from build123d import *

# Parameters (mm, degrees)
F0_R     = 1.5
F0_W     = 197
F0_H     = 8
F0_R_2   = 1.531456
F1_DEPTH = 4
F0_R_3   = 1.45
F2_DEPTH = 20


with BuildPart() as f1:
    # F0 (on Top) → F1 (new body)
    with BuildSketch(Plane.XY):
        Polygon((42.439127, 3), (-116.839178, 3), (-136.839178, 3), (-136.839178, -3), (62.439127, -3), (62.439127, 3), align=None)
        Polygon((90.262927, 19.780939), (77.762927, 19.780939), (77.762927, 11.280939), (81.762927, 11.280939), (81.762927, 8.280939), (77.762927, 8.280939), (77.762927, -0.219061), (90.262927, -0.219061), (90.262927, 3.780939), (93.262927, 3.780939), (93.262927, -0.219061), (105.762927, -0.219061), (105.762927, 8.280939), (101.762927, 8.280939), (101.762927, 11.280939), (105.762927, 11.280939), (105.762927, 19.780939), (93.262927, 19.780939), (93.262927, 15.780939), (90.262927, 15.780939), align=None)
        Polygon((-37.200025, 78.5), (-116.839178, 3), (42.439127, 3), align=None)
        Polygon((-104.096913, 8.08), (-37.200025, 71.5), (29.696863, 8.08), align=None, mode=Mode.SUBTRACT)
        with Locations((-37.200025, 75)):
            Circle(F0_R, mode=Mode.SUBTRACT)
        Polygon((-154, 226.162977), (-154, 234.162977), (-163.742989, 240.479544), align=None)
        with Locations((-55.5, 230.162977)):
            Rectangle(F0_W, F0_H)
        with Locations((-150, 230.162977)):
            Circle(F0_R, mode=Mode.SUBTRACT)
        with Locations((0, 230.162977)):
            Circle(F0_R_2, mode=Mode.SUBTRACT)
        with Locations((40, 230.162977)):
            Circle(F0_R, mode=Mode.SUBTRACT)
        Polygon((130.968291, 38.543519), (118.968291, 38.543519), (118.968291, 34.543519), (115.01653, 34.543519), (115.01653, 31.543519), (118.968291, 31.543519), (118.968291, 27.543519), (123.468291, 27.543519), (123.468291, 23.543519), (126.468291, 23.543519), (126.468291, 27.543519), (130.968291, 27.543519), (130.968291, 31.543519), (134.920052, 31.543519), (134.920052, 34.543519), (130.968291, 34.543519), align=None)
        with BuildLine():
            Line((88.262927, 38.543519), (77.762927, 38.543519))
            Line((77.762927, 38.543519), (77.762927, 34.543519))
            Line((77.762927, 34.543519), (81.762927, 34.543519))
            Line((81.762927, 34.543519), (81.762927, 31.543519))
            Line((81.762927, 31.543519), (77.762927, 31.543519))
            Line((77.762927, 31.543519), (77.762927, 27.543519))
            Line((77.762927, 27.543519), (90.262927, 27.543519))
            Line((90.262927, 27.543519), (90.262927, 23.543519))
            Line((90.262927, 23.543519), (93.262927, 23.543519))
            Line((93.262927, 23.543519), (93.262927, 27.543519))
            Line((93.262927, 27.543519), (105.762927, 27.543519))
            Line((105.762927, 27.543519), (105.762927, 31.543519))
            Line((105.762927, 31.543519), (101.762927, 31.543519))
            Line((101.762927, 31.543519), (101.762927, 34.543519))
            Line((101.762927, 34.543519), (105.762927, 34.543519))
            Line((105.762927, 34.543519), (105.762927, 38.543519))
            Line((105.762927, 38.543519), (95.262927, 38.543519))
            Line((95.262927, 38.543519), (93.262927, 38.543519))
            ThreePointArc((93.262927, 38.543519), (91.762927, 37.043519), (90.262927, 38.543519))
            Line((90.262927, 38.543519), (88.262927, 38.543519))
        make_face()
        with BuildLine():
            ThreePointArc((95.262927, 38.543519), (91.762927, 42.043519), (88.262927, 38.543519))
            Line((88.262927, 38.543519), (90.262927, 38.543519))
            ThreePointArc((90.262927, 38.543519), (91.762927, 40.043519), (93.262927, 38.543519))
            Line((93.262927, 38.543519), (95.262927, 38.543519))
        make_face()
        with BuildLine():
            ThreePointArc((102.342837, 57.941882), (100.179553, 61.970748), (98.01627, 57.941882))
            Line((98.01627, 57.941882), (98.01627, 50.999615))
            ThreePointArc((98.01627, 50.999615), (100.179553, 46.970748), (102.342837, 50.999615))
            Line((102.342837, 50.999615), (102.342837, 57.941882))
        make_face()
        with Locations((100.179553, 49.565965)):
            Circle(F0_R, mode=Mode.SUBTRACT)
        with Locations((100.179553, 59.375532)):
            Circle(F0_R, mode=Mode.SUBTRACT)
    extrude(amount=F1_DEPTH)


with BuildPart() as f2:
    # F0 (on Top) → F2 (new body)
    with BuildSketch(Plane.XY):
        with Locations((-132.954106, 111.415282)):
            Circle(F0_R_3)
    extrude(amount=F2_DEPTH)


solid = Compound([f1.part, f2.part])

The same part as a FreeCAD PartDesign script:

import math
import FreeCAD as App
import Part
import Sketcher
from FreeCAD import Vector

doc = App.newDocument("Part")
body = doc.addObject("PartDesign::Body", "Body")
body.AllowCompound = True

# Sketch on XY plane
sketch1 = body.newObject("Sketcher::SketchObject", "Sketch")
sketch1.AttachmentSupport = (doc.getObject("XY_Plane"), [""])
sketch1.MapMode = "FlatFace"
sketch1.addGeometry([
    Part.LineSegment(Vector(-136.8, 3, 0), Vector(-136.8, -3, 0)),  # 0
    Part.LineSegment(Vector(-136.8, -3, 0), Vector(62.4, -3, 0)),  # 1
    Part.LineSegment(Vector(62.4, -3, 0), Vector(62.4, 3, 0)),  # 2
    Part.LineSegment(Vector(62.4, 3, 0), Vector(42.4, 3, 0)),  # 3
    Part.LineSegment(Vector(42.4, 3, 0), Vector(-37.2, 78.5, 0)),  # 4
    Part.LineSegment(Vector(-37.2, 78.5, 0), Vector(-116.8, 3, 0)),  # 5
    Part.LineSegment(Vector(-116.8, 3, 0), Vector(-136.8, 3, 0)),  # 6
    Part.LineSegment(Vector(29.7, 8.1, 0), Vector(-104.1, 8.1, 0)),  # 7
    Part.LineSegment(Vector(-104.1, 8.1, 0), Vector(-37.2, 71.5, 0)),  # 8
    Part.LineSegment(Vector(-37.2, 71.5, 0), Vector(29.7, 8.1, 0)),  # 9
    Part.Circle(Vector(-37.2, 75, 0), Vector(0, 0, 1), 1.5),  # 10
    Part.LineSegment(Vector(90.3, 19.8, 0), Vector(77.8, 19.8, 0)),  # 11
    Part.LineSegment(Vector(77.8, 19.8, 0), Vector(77.8, 11.3, 0)),  # 12
    Part.LineSegment(Vector(77.8, 11.3, 0), Vector(81.8, 11.3, 0)),  # 13
    Part.LineSegment(Vector(81.8, 11.3, 0), Vector(81.8, 8.3, 0)),  # 14
    Part.LineSegment(Vector(81.8, 8.3, 0), Vector(77.8, 8.3, 0)),  # 15
    Part.LineSegment(Vector(77.8, 8.3, 0), Vector(77.8, -0.2, 0)),  # 16
    Part.LineSegment(Vector(77.8, -0.2, 0), Vector(90.3, -0.2, 0)),  # 17
    Part.LineSegment(Vector(90.3, -0.2, 0), Vector(90.3, 3.8, 0)),  # 18
    Part.LineSegment(Vector(90.3, 3.8, 0), Vector(93.3, 3.8, 0)),  # 19
    Part.LineSegment(Vector(93.3, 3.8, 0), Vector(93.3, -0.2, 0)),  # 20
    Part.LineSegment(Vector(93.3, -0.2, 0), Vector(105.8, -0.2, 0)),  # 21
    Part.LineSegment(Vector(105.8, -0.2, 0), Vector(105.8, 8.3, 0)),  # 22
    Part.LineSegment(Vector(105.8, 8.3, 0), Vector(101.8, 8.3, 0)),  # 23
    Part.LineSegment(Vector(101.8, 8.3, 0), Vector(101.8, 11.3, 0)),  # 24
    Part.LineSegment(Vector(101.8, 11.3, 0), Vector(105.8, 11.3, 0)),  # 25
    Part.LineSegment(Vector(105.8, 11.3, 0), Vector(105.8, 19.8, 0)),  # 26
    Part.LineSegment(Vector(105.8, 19.8, 0), Vector(93.3, 19.8, 0)),  # 27
    Part.LineSegment(Vector(93.3, 19.8, 0), Vector(93.3, 15.8, 0)),  # 28
    Part.LineSegment(Vector(93.3, 15.8, 0), Vector(90.3, 15.8, 0)),  # 29
    Part.LineSegment(Vector(90.3, 15.8, 0), Vector(90.3, 19.8, 0)),  # 30
    Part.LineSegment(Vector(-154, 234.2, 0), Vector(-163.7, 240.5, 0)),  # 31
    Part.LineSegment(Vector(-163.7, 240.5, 0), Vector(-154, 226.2, 0)),  # 32
    Part.LineSegment(Vector(-154, 226.2, 0), Vector(43, 226.2, 0)),  # 33
    Part.LineSegment(Vector(43, 226.2, 0), Vector(43, 234.2, 0)),  # 34
    Part.LineSegment(Vector(43, 234.2, 0), Vector(-154, 234.2, 0)),  # 35
    Part.Circle(Vector(-150, 230.2, 0), Vector(0, 0, 1), 1.5),  # 36
    Part.Circle(Vector(0, 230.2, 0), Vector(0, 0, 1), 1.5),  # 37
    Part.Circle(Vector(40, 230.2, 0), Vector(0, 0, 1), 1.5),  # 38
    Part.LineSegment(Vector(131, 38.5, 0), Vector(119, 38.5, 0)),  # 39
    Part.LineSegment(Vector(119, 38.5, 0), Vector(119, 34.5, 0)),  # 40
    Part.LineSegment(Vector(119, 34.5, 0), Vector(115, 34.5, 0)),  # 41
    Part.LineSegment(Vector(115, 34.5, 0), Vector(115, 31.5, 0)),  # 42
    Part.LineSegment(Vector(115, 31.5, 0), Vector(119, 31.5, 0)),  # 43
    Part.LineSegment(Vector(119, 31.5, 0), Vector(119, 27.5, 0)),  # 44
    Part.LineSegment(Vector(119, 27.5, 0), Vector(123.5, 27.5, 0)),  # 45
    Part.LineSegment(Vector(123.5, 27.5, 0), Vector(123.5, 23.5, 0)),  # 46
    Part.LineSegment(Vector(123.5, 23.5, 0), Vector(126.5, 23.5, 0)),  # 47
    Part.LineSegment(Vector(126.5, 23.5, 0), Vector(126.5, 27.5, 0)),  # 48
    Part.LineSegment(Vector(126.5, 27.5, 0), Vector(131, 27.5, 0)),  # 49
    Part.LineSegment(Vector(131, 27.5, 0), Vector(131, 31.5, 0)),  # 50
    Part.LineSegment(Vector(131, 31.5, 0), Vector(134.9, 31.5, 0)),  # 51
    Part.LineSegment(Vector(134.9, 31.5, 0), Vector(134.9, 34.5, 0)),  # 52
    Part.LineSegment(Vector(134.9, 34.5, 0), Vector(131, 34.5, 0)),  # 53
    Part.LineSegment(Vector(131, 34.5, 0), Vector(131, 38.5, 0)),  # 54
    Part.LineSegment(Vector(77.8, 38.5, 0), Vector(77.8, 34.5, 0)),  # 55
    Part.LineSegment(Vector(77.8, 34.5, 0), Vector(81.8, 34.5, 0)),  # 56
    Part.LineSegment(Vector(81.8, 34.5, 0), Vector(81.8, 31.5, 0)),  # 57
    Part.LineSegment(Vector(81.8, 31.5, 0), Vector(77.8, 31.5, 0)),  # 58
    Part.LineSegment(Vector(77.8, 31.5, 0), Vector(77.8, 27.5, 0)),  # 59
    Part.LineSegment(Vector(77.8, 27.5, 0), Vector(90.3, 27.5, 0)),  # 60
    Part.LineSegment(Vector(90.3, 27.5, 0), Vector(90.3, 23.5, 0)),  # 61
    Part.LineSegment(Vector(90.3, 23.5, 0), Vector(93.3, 23.5, 0)),  # 62
    Part.LineSegment(Vector(93.3, 23.5, 0), Vector(93.3, 27.5, 0)),  # 63
    Part.LineSegment(Vector(93.3, 27.5, 0), Vector(105.8, 27.5, 0)),  # 64
    Part.LineSegment(Vector(105.8, 27.5, 0), Vector(105.8, 31.5, 0)),  # 65
    Part.LineSegment(Vector(105.8, 31.5, 0), Vector(101.8, 31.5, 0)),  # 66
    Part.LineSegment(Vector(101.8, 31.5, 0), Vector(101.8, 34.5, 0)),  # 67
    Part.LineSegment(Vector(101.8, 34.5, 0), Vector(105.8, 34.5, 0)),  # 68
    Part.LineSegment(Vector(105.8, 34.5, 0), Vector(105.8, 38.5, 0)),  # 69
    Part.LineSegment(Vector(105.8, 38.5, 0), Vector(95.3, 38.5, 0)),  # 70
    Part.ArcOfCircle(Part.Circle(Vector(91.8, 38.5, 0), Vector(0, 0, 1), 3.5), math.radians(0), math.radians(180)),  # 71
    Part.LineSegment(Vector(88.3, 38.5, 0), Vector(77.8, 38.5, 0)),  # 72
    Part.Circle(Vector(91.8, 38.5, 0), Vector(0, 0, 1), 1.5),  # 73
    Part.ArcOfCircle(Part.Circle(Vector(100.2, 59.4, 0), Vector(0, 0, 1), 2.6), math.radians(-34), math.radians(214)),  # 74
    Part.LineSegment(Vector(98, 57.9, 0), Vector(98, 51, 0)),  # 75
    Part.ArcOfCircle(Part.Circle(Vector(100.2, 49.6, 0), Vector(0, 0, 1), 2.6), math.radians(146), math.radians(394)),  # 76
    Part.LineSegment(Vector(102.3, 51, 0), Vector(102.3, 57.9, 0)),  # 77
    Part.Circle(Vector(100.2, 49.6, 0), Vector(0, 0, 1), 1.5),  # 78
    Part.Circle(Vector(100.2, 59.4, 0), Vector(0, 0, 1), 1.5),  # 79
], False)
sketch1.addConstraint([
    Sketcher.Constraint("Coincident", 0, 2, 1, 1),
    Sketcher.Constraint("Coincident", 1, 2, 2, 1),
    Sketcher.Constraint("Coincident", 2, 2, 3, 1),
    Sketcher.Constraint("Coincident", 3, 2, 4, 1),
    Sketcher.Constraint("Coincident", 4, 2, 5, 1),
    Sketcher.Constraint("Coincident", 5, 2, 6, 1),
    Sketcher.Constraint("Coincident", 6, 2, 0, 1),
    Sketcher.Constraint("Coincident", 7, 2, 8, 1),
    Sketcher.Constraint("Coincident", 8, 2, 9, 1),
    Sketcher.Constraint("Coincident", 9, 2, 7, 1),
    Sketcher.Constraint("Coincident", 11, 2, 12, 1),
    Sketcher.Constraint("Coincident", 12, 2, 13, 1),
    Sketcher.Constraint("Coincident", 13, 2, 14, 1),
    Sketcher.Constraint("Coincident", 14, 2, 15, 1),
    Sketcher.Constraint("Coincident", 15, 2, 16, 1),
    Sketcher.Constraint("Coincident", 16, 2, 17, 1),
    Sketcher.Constraint("Coincident", 17, 2, 18, 1),
    Sketcher.Constraint("Coincident", 18, 2, 19, 1),
    Sketcher.Constraint("Coincident", 19, 2, 20, 1),
    Sketcher.Constraint("Coincident", 20, 2, 21, 1),
    Sketcher.Constraint("Coincident", 21, 2, 22, 1),
    Sketcher.Constraint("Coincident", 22, 2, 23, 1),
    Sketcher.Constraint("Coincident", 23, 2, 24, 1),
    Sketcher.Constraint("Coincident", 24, 2, 25, 1),
    Sketcher.Constraint("Coincident", 25, 2, 26, 1),
    Sketcher.Constraint("Coincident", 26, 2, 27, 1),
    Sketcher.Constraint("Coincident", 27, 2, 28, 1),
    Sketcher.Constraint("Coincident", 28, 2, 29, 1),
    Sketcher.Constraint("Coincident", 29, 2, 30, 1),
    Sketcher.Constraint("Coincident", 30, 2, 11, 1),
    Sketcher.Constraint("Coincident", 31, 2, 32, 1),
    Sketcher.Constraint("Coincident", 32, 2, 33, 1),
    Sketcher.Constraint("Coincident", 33, 2, 34, 1),
    Sketcher.Constraint("Coincident", 34, 2, 35, 1),
    Sketcher.Constraint("Coincident", 35, 2, 31, 1),
    Sketcher.Constraint("Coincident", 39, 2, 40, 1),
    Sketcher.Constraint("Coincident", 40, 2, 41, 1),
    Sketcher.Constraint("Coincident", 41, 2, 42, 1),
    Sketcher.Constraint("Coincident", 42, 2, 43, 1),
    Sketcher.Constraint("Coincident", 43, 2, 44, 1),
    Sketcher.Constraint("Coincident", 44, 2, 45, 1),
    Sketcher.Constraint("Coincident", 45, 2, 46, 1),
    Sketcher.Constraint("Coincident", 46, 2, 47, 1),
    Sketcher.Constraint("Coincident", 47, 2, 48, 1),
    Sketcher.Constraint("Coincident", 48, 2, 49, 1),
    Sketcher.Constraint("Coincident", 49, 2, 50, 1),
    Sketcher.Constraint("Coincident", 50, 2, 51, 1),
    Sketcher.Constraint("Coincident", 51, 2, 52, 1),
    Sketcher.Constraint("Coincident", 52, 2, 53, 1),
    Sketcher.Constraint("Coincident", 53, 2, 54, 1),
    Sketcher.Constraint("Coincident", 54, 2, 39, 1),
    Sketcher.Constraint("Coincident", 55, 2, 56, 1),
    Sketcher.Constraint("Coincident", 56, 2, 57, 1),
    Sketcher.Constraint("Coincident", 57, 2, 58, 1),
    Sketcher.Constraint("Coincident", 58, 2, 59, 1),
    Sketcher.Constraint("Coincident", 59, 2, 60, 1),
    Sketcher.Constraint("Coincident", 60, 2, 61, 1),
    Sketcher.Constraint("Coincident", 61, 2, 62, 1),
    Sketcher.Constraint("Coincident", 62, 2, 63, 1),
    Sketcher.Constraint("Coincident", 63, 2, 64, 1),
    Sketcher.Constraint("Coincident", 64, 2, 65, 1),
    Sketcher.Constraint("Coincident", 65, 2, 66, 1),
    Sketcher.Constraint("Coincident", 66, 2, 67, 1),
    Sketcher.Constraint("Coincident", 67, 2, 68, 1),
    Sketcher.Constraint("Coincident", 68, 2, 69, 1),
    Sketcher.Constraint("Coincident", 69, 2, 70, 1),
    Sketcher.Constraint("Coincident", 70, 2, 71, 1),
    Sketcher.Constraint("Coincident", 71, 2, 72, 1),
    Sketcher.Constraint("Coincident", 72, 2, 55, 1),
    Sketcher.Constraint("Coincident", 74, 2, 75, 1),
    Sketcher.Constraint("Coincident", 75, 2, 76, 1),
    Sketcher.Constraint("Coincident", 76, 2, 77, 1),
    Sketcher.Constraint("Coincident", 77, 2, 74, 1),
    Sketcher.Constraint("Vertical", 0),
    Sketcher.Constraint("Horizontal", 1),
    Sketcher.Constraint("Vertical", 2),
    Sketcher.Constraint("Horizontal", 3),
    Sketcher.Constraint("Horizontal", 6),
    Sketcher.Constraint("Horizontal", 7),
    Sketcher.Constraint("Horizontal", 11),
    Sketcher.Constraint("Vertical", 12),
    Sketcher.Constraint("Horizontal", 13),
    Sketcher.Constraint("Vertical", 14),
    Sketcher.Constraint("Horizontal", 15),
    Sketcher.Constraint("Vertical", 16),
    Sketcher.Constraint("Horizontal", 17),
    Sketcher.Constraint("Vertical", 18),
    Sketcher.Constraint("Horizontal", 19),
    Sketcher.Constraint("Vertical", 20),
    Sketcher.Constraint("Horizontal", 21),
    Sketcher.Constraint("Vertical", 22),
    Sketcher.Constraint("Horizontal", 23),
    Sketcher.Constraint("Vertical", 24),
    Sketcher.Constraint("Horizontal", 25),
    Sketcher.Constraint("Vertical", 26),
    Sketcher.Constraint("Horizontal", 27),
    Sketcher.Constraint("Vertical", 28),
    Sketcher.Constraint("Horizontal", 29),
    Sketcher.Constraint("Vertical", 30),
    Sketcher.Constraint("Horizontal", 33),
    Sketcher.Constraint("Vertical", 34),
    Sketcher.Constraint("Horizontal", 35),
    Sketcher.Constraint("Horizontal", 39),
    Sketcher.Constraint("Vertical", 40),
    Sketcher.Constraint("Horizontal", 41),
    Sketcher.Constraint("Vertical", 42),
    Sketcher.Constraint("Horizontal", 43),
    Sketcher.Constraint("Vertical", 44),
    Sketcher.Constraint("Horizontal", 45),
    Sketcher.Constraint("Vertical", 46),
    Sketcher.Constraint("Horizontal", 47),
    Sketcher.Constraint("Vertical", 48),
    Sketcher.Constraint("Horizontal", 49),
    Sketcher.Constraint("Vertical", 50),
    Sketcher.Constraint("Horizontal", 51),
    Sketcher.Constraint("Vertical", 52),
    Sketcher.Constraint("Horizontal", 53),
    Sketcher.Constraint("Vertical", 54),
    Sketcher.Constraint("Vertical", 55),
    Sketcher.Constraint("Horizontal", 56),
    Sketcher.Constraint("Vertical", 57),
    Sketcher.Constraint("Horizontal", 58),
    Sketcher.Constraint("Vertical", 59),
    Sketcher.Constraint("Horizontal", 60),
    Sketcher.Constraint("Vertical", 61),
    Sketcher.Constraint("Horizontal", 62),
    Sketcher.Constraint("Vertical", 63),
    Sketcher.Constraint("Horizontal", 64),
    Sketcher.Constraint("Vertical", 65),
    Sketcher.Constraint("Horizontal", 66),
    Sketcher.Constraint("Vertical", 67),
    Sketcher.Constraint("Horizontal", 68),
    Sketcher.Constraint("Vertical", 69),
    Sketcher.Constraint("Horizontal", 70),
    Sketcher.Constraint("Horizontal", 72),
    Sketcher.Constraint("Vertical", 75),
    Sketcher.Constraint("Vertical", 77),
    Sketcher.Constraint("Coincident", 73, 3, 71, 3),
    Sketcher.Constraint("Coincident", 78, 3, 76, 3),
    Sketcher.Constraint("Coincident", 79, 3, 74, 3),
    Sketcher.Constraint("Equal", 10, 36),
    Sketcher.Constraint("Equal", 36, 38),
    Sketcher.Constraint("Equal", 38, 73),
    Sketcher.Constraint("Equal", 74, 76),
    Sketcher.Constraint("Equal", 73, 78),
    Sketcher.Constraint("Equal", 78, 79),
    Sketcher.Constraint("PointOnObject", 37, 3, -2),
    Sketcher.Constraint("Parallel", 5, 8),
    Sketcher.Constraint("Parallel", 4, 9),
    Sketcher.Constraint("Horizontal", 36, 3, 37, 3),
    Sketcher.Constraint("Horizontal", 37, 3, 38, 3),
    Sketcher.Constraint("Horizontal", 3, 2, 5, 2),
    Sketcher.Constraint("Horizontal", 17, 2, 20, 2),
    Sketcher.Constraint("Horizontal", 15, 2, 22, 2),
    Sketcher.Constraint("Horizontal", 13, 2, 24, 2),
    Sketcher.Constraint("Horizontal", 11, 2, 26, 2),
    Sketcher.Constraint("Horizontal", 73, 3, 39, 2),
    Sketcher.Constraint("Horizontal", 45, 2, 48, 2),
    Sketcher.Constraint("Horizontal", 43, 2, 50, 2),
    Sketcher.Constraint("Horizontal", 41, 2, 52, 2),
    Sketcher.Constraint("Horizontal", 53, 2, 55, 2),
    Sketcher.Constraint("Horizontal", 51, 2, 57, 2),
    Sketcher.Constraint("Horizontal", 49, 2, 59, 2),
    Sketcher.Constraint("Horizontal", 47, 2, 61, 2),
    Sketcher.Constraint("Horizontal", 60, 2, 63, 2),
    Sketcher.Constraint("Horizontal", 58, 2, 65, 2),
    Sketcher.Constraint("Horizontal", 56, 2, 67, 2),
    Sketcher.Constraint("Horizontal", 54, 2, 69, 2),
    Sketcher.Constraint("Horizontal", 70, 2, 71, 2),
    Sketcher.Constraint("Horizontal", 75, 2, 76, 2),
    Sketcher.Constraint("Horizontal", 74, 2, 77, 2),
    Sketcher.Constraint("Vertical", 10, 3, 4, 2),
    Sketcher.Constraint("Vertical", 4, 2, 8, 2),
    Sketcher.Constraint("Vertical", 12, 2, 15, 2),
    Sketcher.Constraint("Vertical", 22, 2, 25, 2),
    Sketcher.Constraint("Vertical", 20, 2, 27, 2),
    Sketcher.Constraint("Vertical", 18, 2, 29, 2),
    Sketcher.Constraint("Vertical", 32, 2, 35, 2),
    Sketcher.Constraint("Vertical", 40, 2, 43, 2),
    Sketcher.Constraint("Vertical", 50, 2, 53, 2),
    Sketcher.Constraint("Vertical", 16, 2, 55, 2),
    Sketcher.Constraint("Vertical", 14, 2, 56, 2),
    Sketcher.Constraint("Vertical", 55, 2, 58, 2),
    Sketcher.Constraint("Vertical", 30, 2, 60, 2),
    Sketcher.Constraint("Vertical", 28, 2, 62, 2),
    Sketcher.Constraint("Vertical", 26, 2, 64, 2),
    Sketcher.Constraint("Vertical", 24, 2, 66, 2),
    Sketcher.Constraint("Vertical", 65, 2, 68, 2),
    Sketcher.Constraint("Equal", 3, 6),
    Sketcher.Constraint("Equal", 17, 21),
    Sketcher.Constraint("Equal", 15, 23),
    Sketcher.Constraint("Equal", 29, 47),
    Sketcher.Constraint("Equal", 45, 49),
    Sketcher.Constraint("Equal", 43, 51),
    Sketcher.Constraint("Equal", 70, 72),
    Sketcher.Constraint("Equal", 62, 14),
    Sketcher.Constraint("Equal", 12, 16),
    Sketcher.Constraint("Equal", 68, 18),
    Sketcher.Constraint("Equal", 20, 28),
    Sketcher.Constraint("Equal", 30, 40),
    Sketcher.Constraint("Equal", 24, 42),
    Sketcher.Constraint("Equal", 40, 44),
    Sketcher.Constraint("Equal", 44, 46),
    Sketcher.Constraint("Equal", 4, 5),
    Sketcher.Constraint("Diameter", 10, 3.0),
    Sketcher.Constraint("Radius", 71, 3.5),
    Sketcher.Constraint("DistanceX", 3, 2, 3, 1, 20.0),
    Sketcher.Constraint("DistanceX", 13, 1, 13, 2, 4.0),
    Sketcher.Constraint("DistanceX", 19, 1, 19, 2, 3.0),
    Sketcher.Constraint("DistanceX", 33, 1, 33, 2, 197.0),
    Sketcher.Constraint("DistanceX", 39, 2, 39, 1, 12.0),
    Sketcher.Constraint("DistanceY", 0, 2, 0, 1, 6.0),
    Sketcher.Constraint("DistanceY", 34, 1, 34, 2, 8.0),
    Sketcher.Constraint("DistanceX", 11, 2, 11, 1, 12.5),
    Sketcher.Constraint("DistanceY", 12, 2, 12, 1, 8.5),
    Sketcher.Constraint("DistanceY", -1, 1, 10, 3, 75.0),
    Sketcher.Constraint("DistanceX", 36, 3, -1, 1, 150.0),
    Sketcher.Constraint("DistanceX", -1, 1, 38, 3, 40.0),
    Sketcher.Constraint("DistanceY", 0, 2, -1, 1, 3.0),
    Sketcher.Constraint("DistanceX", 32, 2, -1, 1, 154.0),
    Sketcher.Constraint("DistanceY", -1, 1, 4, 2, 78.5),
    Sketcher.Constraint("DistanceY", -1, 1, 8, 2, 71.5),
    Sketcher.Constraint("Diameter", 37, 3.062912),
    Sketcher.Constraint("DistanceY", -1, 1, 7, 2, 8.08),
    Sketcher.Constraint("Radius", 74, 2.595216),
    Sketcher.Constraint("DistanceX", 41, 2, 41, 1, 3.951761),
    Sketcher.Constraint("Distance", 31, 11.61141),
    Sketcher.Constraint("Distance", 32, 17.31733),
    Sketcher.Constraint("DistanceX", 1, 1, 1, 2, 199.278305),
    Sketcher.Constraint("DistanceY", 75, 2, 75, 1, 6.942267),
    Sketcher.Constraint("DistanceY", -1, 1, 71, 3, 38.543519),
    Sketcher.Constraint("DistanceY", -1, 1, 74, 3, 59.375532),
    Sketcher.Constraint("DistanceX", 0, 2, -1, 1, 136.839178),
    Sketcher.Constraint("DistanceY", -1, 1, 11, 2, 19.780939),
    Sketcher.Constraint("DistanceX", -1, 1, 39, 2, 118.968291),
    Sketcher.Constraint("DistanceX", -1, 1, 74, 2, 98.01627),
    Sketcher.Constraint("DistanceY", -1, 1, 74, 2, 57.941882),
    Sketcher.Constraint("DistanceY", -1, 1, 36, 3, 230.162977),
    Sketcher.Constraint("DistanceX", -1, 1, 71, 3, 91.762927),
    Sketcher.Constraint("DistanceY", -1, 1, 31, 2, 240.479544),
])
pad1 = body.newObject("PartDesign::Pad", "Pad")
pad1.Profile = sketch1
pad1.Length = 4
body2 = doc.addObject("PartDesign::Body", "Body001")

# Sketch on XY plane
sketch2 = body2.newObject("Sketcher::SketchObject", "Sketch001")
sketch2.AttachmentSupport = (doc.getObject("XY_Plane001"), [""])
sketch2.MapMode = "FlatFace"
sketch2.addGeometry(Part.Circle(Vector(-133, 111.4, 0), Vector(0, 0, 1), 1.4), False)
sketch2.addConstraint([
    Sketcher.Constraint("Diameter", 0, 2.9),
    Sketcher.Constraint("DistanceX", 0, 3, -1, 1, 132.954106),
    Sketcher.Constraint("DistanceY", -1, 1, 0, 3, 111.415282),
])
pad2 = body2.newObject("PartDesign::Pad", "Pad001")
pad2.Profile = sketch2
pad2.Length = 20

doc.recompute()
